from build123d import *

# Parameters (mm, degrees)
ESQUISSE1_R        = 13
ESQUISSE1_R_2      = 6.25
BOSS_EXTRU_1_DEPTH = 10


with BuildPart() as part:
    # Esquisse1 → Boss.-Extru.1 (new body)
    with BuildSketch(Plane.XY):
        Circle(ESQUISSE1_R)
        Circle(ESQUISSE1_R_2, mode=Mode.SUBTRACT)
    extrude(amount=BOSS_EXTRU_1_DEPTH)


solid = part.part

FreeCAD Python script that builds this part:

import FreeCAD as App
import Part
import Sketcher

doc = App.newDocument("Part")
body = doc.addObject("PartDesign::Body", "Body")

# Sketch on XY plane
sketch1 = body.newObject("Sketcher::SketchObject", "Sketch")
sketch1.AttachmentSupport = (doc.getObject("XY_Plane"), [""])
sketch1.MapMode = "FlatFace"
sketch1.addGeometry([
    Part.Circle(App.Vector(0, 0, 0), App.Vector(0, 0, 1), 13),
    Part.Circle(App.Vector(0, 0, 0), App.Vector(0, 0, 1), 6.25),
], False)
sketch1.addConstraint([
    Sketcher.Constraint("Coincident", 0, 3, -1, 1),
    Sketcher.Constraint("Coincident", 1, 3, -1, 1),
    Sketcher.Constraint("Diameter", 0, 26.0),
    Sketcher.Constraint("Diameter", 1, 12.5),
])
pad1 = body.newObject("PartDesign::Pad", "Pad")
pad1.Profile = sketch1
pad1.Length = 10

doc.recompute()
